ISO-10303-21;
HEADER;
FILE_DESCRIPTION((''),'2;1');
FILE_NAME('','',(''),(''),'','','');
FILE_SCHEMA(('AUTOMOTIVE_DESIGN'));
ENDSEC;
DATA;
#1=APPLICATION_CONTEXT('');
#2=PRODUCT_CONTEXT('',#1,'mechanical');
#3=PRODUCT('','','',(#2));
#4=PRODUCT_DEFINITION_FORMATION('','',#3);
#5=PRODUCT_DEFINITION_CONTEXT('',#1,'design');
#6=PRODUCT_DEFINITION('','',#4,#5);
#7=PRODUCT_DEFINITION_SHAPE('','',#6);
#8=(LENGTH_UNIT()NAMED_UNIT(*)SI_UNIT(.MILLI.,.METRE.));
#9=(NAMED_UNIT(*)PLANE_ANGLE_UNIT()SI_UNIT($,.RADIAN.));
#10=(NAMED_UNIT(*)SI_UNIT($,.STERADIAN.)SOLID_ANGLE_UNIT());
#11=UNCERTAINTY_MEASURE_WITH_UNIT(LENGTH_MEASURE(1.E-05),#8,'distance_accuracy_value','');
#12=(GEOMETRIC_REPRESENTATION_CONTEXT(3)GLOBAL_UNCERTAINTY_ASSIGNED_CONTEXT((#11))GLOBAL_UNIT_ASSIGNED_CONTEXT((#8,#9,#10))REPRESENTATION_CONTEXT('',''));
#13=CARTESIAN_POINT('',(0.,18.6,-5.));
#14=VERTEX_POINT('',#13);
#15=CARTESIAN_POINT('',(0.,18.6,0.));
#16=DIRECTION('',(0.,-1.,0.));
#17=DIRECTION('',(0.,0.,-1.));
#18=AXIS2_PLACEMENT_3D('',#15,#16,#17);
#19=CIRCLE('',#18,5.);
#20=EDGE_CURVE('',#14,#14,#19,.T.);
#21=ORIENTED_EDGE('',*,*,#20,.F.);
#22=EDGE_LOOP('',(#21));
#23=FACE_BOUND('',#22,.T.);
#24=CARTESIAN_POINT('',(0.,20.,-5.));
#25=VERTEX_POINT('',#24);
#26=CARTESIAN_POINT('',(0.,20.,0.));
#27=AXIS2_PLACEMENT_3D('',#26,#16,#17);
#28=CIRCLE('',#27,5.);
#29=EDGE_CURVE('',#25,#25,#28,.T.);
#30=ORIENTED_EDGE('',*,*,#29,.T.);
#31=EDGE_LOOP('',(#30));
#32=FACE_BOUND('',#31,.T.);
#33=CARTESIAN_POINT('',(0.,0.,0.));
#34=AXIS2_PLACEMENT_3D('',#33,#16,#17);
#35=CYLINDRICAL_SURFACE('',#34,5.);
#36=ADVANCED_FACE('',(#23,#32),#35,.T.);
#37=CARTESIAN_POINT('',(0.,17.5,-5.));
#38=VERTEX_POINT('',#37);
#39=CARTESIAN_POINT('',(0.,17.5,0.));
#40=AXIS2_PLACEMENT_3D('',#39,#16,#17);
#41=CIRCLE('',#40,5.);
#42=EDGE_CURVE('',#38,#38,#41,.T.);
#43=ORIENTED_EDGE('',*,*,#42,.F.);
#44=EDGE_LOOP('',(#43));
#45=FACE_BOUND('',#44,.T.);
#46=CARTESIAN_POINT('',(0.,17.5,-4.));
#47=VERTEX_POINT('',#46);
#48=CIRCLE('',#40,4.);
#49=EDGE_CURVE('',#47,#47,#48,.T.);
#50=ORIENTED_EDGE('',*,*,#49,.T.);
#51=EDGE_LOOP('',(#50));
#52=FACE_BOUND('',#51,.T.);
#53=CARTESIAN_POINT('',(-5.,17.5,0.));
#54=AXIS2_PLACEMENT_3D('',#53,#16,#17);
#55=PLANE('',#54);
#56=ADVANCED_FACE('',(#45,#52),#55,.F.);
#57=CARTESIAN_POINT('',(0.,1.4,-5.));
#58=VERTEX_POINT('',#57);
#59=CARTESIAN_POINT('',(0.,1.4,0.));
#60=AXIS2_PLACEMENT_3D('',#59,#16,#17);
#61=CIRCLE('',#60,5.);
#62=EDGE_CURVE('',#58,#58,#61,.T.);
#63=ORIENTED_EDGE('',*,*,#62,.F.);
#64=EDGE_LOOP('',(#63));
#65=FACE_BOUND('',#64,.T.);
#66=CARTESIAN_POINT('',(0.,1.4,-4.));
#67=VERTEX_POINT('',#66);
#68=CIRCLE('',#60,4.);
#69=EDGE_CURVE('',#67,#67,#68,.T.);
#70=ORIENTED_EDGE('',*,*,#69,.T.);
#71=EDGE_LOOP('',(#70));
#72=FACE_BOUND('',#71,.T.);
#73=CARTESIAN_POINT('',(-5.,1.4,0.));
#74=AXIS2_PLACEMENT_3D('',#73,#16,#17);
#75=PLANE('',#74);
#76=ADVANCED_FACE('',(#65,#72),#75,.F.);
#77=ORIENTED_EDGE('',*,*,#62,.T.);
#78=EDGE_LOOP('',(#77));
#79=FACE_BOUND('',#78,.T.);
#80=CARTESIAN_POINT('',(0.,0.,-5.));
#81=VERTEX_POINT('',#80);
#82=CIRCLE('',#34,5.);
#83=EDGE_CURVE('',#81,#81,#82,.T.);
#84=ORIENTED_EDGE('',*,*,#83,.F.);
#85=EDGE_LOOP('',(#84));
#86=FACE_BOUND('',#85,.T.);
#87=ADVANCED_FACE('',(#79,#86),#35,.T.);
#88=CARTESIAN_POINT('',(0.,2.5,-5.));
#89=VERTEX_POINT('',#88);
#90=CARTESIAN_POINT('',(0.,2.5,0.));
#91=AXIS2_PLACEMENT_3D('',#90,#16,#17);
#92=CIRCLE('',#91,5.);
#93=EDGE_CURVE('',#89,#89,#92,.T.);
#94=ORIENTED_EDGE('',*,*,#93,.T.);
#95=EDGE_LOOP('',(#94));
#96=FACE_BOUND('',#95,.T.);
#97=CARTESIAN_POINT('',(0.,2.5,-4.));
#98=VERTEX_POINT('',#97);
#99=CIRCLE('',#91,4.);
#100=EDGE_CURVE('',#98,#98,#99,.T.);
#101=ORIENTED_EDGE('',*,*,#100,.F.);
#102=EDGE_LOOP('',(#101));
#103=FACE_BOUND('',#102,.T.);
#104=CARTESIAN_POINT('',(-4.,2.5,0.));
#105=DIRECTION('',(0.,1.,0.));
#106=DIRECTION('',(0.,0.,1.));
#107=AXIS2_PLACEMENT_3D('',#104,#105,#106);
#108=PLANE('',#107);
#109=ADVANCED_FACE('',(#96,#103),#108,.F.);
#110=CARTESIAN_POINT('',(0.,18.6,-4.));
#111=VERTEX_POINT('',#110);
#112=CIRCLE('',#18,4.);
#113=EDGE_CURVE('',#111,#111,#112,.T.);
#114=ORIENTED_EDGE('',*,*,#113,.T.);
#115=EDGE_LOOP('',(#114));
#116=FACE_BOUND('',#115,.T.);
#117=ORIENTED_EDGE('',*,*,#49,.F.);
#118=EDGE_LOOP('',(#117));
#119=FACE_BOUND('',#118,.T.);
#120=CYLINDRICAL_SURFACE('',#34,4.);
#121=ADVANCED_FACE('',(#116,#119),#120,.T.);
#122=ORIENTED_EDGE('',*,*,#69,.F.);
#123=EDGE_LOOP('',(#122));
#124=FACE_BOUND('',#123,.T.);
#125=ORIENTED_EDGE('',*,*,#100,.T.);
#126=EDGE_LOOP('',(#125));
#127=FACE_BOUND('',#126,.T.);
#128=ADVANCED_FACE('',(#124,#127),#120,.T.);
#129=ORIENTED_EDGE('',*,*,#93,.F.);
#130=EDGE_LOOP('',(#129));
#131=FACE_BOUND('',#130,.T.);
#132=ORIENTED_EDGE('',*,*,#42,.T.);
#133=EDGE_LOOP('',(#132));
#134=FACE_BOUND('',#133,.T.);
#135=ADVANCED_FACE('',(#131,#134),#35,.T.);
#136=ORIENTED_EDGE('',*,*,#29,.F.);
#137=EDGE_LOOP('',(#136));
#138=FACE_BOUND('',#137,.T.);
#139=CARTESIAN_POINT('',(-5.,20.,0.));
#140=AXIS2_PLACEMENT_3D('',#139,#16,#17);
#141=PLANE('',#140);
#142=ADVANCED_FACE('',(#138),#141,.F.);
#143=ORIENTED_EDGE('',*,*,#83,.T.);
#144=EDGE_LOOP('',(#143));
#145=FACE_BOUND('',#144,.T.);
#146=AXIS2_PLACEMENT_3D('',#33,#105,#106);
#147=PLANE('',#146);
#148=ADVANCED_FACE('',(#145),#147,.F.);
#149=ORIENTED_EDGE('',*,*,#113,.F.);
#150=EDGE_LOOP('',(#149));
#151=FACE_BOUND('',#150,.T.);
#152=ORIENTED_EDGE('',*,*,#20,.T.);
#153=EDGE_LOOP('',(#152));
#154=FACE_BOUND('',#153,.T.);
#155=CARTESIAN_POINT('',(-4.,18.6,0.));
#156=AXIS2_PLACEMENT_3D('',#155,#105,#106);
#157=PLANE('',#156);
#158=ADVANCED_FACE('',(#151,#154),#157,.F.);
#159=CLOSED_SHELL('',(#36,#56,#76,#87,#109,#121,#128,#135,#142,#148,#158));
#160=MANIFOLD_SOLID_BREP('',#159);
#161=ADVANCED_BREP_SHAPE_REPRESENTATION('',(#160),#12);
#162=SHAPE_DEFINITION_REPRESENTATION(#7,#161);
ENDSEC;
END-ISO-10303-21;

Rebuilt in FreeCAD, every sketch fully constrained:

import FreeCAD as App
import Part
import Sketcher

V = App.Vector

doc = App.newDocument("Part")
body = doc.addObject("PartDesign::Body", "Body")

# Sketch on XY plane
sketch1 = body.newObject("Sketcher::SketchObject", "Sketch")
sketch1.AttachmentSupport = (doc.getObject("XY_Plane"), [""])
sketch1.MapMode = "FlatFace"
sketch1.addGeometry([
    Part.LineSegment(V(-5, 0, 0), V(0, 0, 0)),  # 0
    Part.LineSegment(V(0, 0, 0), V(0, 20, 0)),  # 1
    Part.LineSegment(V(0, 20, 0), V(-5, 20, 0)),  # 2
    Part.LineSegment(V(-5, 20, 0), V(-5, 18.6, 0)),  # 3
    Part.LineSegment(V(-5, 18.6, 0), V(-4, 18.6, 0)),  # 4
    Part.LineSegment(V(-4, 18.6, 0), V(-4, 17.5, 0)),  # 5
    Part.LineSegment(V(-4, 17.5, 0), V(-5, 17.5, 0)),  # 6
    Part.LineSegment(V(-5, 17.5, 0), V(-5, 2.5, 0)),  # 7
    Part.LineSegment(V(-5, 2.5, 0), V(-4, 2.5, 0)),  # 8
    Part.LineSegment(V(-4, 2.5, 0), V(-4, 1.4, 0)),  # 9
    Part.LineSegment(V(-4, 1.4, 0), V(-5, 1.4, 0)),  # 10
    Part.LineSegment(V(-5, 1.4, 0), V(-5, 0, 0)),  # 11
], False)
sketch1.addConstraint([
    Sketcher.Constraint("Coincident", 0, 2, 1, 1),
    Sketcher.Constraint("Coincident", 1, 2, 2, 1),
    Sketcher.Constraint("Coincident", 2, 2, 3, 1),
    Sketcher.Constraint("Coincident", 3, 2, 4, 1),
    Sketcher.Constraint("Coincident", 4, 2, 5, 1),
    Sketcher.Constraint("Coincident", 5, 2, 6, 1),
    Sketcher.Constraint("Coincident", 6, 2, 7, 1),
    Sketcher.Constraint("Coincident", 7, 2, 8, 1),
    Sketcher.Constraint("Coincident", 8, 2, 9, 1),
    Sketcher.Constraint("Coincident", 9, 2, 10, 1),
    Sketcher.Constraint("Coincident", 10, 2, 11, 1),
    Sketcher.Constraint("Coincident", 11, 2, 0, 1),
    Sketcher.Constraint("Horizontal", 0),
    Sketcher.Constraint("Vertical", 1),
    Sketcher.Constraint("Horizontal", 2),
    Sketcher.Constraint("Vertical", 3),
    Sketcher.Constraint("Horizontal", 4),
    Sketcher.Constraint("Vertical", 5),
    Sketcher.Constraint("Horizontal", 6),
    Sketcher.Constraint("Vertical", 7),
    Sketcher.Constraint("Horizontal", 8),
    Sketcher.Constraint("Vertical", 9),
    Sketcher.Constraint("Horizontal", 10),
    Sketcher.Constraint("Vertical", 11),
    Sketcher.Constraint("Coincident", 0, 2, -1, 1),
    Sketcher.Constraint("Vertical", 3, 2, 6, 2),
    Sketcher.Constraint("Vertical", 5, 2, 8, 2),
    Sketcher.Constraint("Vertical", 7, 2, 10, 2),
    Sketcher.Constraint("Equal", 5, 9),
    Sketcher.Constraint("Equal", 3, 11),
    Sketcher.Constraint("DistanceX", 0, 1, 0, 2, 5.0),
    Sketcher.Constraint("DistanceX", 4, 1, 4, 2, 1.0),
    Sketcher.Constraint("DistanceY", 1, 1, 1, 2, 20.0),
    Sketcher.Constraint("DistanceY", 7, 2, 7, 1, 15.0),
    Sketcher.Constraint("DistanceY", 3, 2, 3, 1, 1.4),
])
revolution = body.newObject("PartDesign::Revolution", "Revolution")
revolution.Profile = sketch1
revolution.ReferenceAxis = (sketch1, ["V_Axis"])
revolution.Angle = 360

doc.recompute()
